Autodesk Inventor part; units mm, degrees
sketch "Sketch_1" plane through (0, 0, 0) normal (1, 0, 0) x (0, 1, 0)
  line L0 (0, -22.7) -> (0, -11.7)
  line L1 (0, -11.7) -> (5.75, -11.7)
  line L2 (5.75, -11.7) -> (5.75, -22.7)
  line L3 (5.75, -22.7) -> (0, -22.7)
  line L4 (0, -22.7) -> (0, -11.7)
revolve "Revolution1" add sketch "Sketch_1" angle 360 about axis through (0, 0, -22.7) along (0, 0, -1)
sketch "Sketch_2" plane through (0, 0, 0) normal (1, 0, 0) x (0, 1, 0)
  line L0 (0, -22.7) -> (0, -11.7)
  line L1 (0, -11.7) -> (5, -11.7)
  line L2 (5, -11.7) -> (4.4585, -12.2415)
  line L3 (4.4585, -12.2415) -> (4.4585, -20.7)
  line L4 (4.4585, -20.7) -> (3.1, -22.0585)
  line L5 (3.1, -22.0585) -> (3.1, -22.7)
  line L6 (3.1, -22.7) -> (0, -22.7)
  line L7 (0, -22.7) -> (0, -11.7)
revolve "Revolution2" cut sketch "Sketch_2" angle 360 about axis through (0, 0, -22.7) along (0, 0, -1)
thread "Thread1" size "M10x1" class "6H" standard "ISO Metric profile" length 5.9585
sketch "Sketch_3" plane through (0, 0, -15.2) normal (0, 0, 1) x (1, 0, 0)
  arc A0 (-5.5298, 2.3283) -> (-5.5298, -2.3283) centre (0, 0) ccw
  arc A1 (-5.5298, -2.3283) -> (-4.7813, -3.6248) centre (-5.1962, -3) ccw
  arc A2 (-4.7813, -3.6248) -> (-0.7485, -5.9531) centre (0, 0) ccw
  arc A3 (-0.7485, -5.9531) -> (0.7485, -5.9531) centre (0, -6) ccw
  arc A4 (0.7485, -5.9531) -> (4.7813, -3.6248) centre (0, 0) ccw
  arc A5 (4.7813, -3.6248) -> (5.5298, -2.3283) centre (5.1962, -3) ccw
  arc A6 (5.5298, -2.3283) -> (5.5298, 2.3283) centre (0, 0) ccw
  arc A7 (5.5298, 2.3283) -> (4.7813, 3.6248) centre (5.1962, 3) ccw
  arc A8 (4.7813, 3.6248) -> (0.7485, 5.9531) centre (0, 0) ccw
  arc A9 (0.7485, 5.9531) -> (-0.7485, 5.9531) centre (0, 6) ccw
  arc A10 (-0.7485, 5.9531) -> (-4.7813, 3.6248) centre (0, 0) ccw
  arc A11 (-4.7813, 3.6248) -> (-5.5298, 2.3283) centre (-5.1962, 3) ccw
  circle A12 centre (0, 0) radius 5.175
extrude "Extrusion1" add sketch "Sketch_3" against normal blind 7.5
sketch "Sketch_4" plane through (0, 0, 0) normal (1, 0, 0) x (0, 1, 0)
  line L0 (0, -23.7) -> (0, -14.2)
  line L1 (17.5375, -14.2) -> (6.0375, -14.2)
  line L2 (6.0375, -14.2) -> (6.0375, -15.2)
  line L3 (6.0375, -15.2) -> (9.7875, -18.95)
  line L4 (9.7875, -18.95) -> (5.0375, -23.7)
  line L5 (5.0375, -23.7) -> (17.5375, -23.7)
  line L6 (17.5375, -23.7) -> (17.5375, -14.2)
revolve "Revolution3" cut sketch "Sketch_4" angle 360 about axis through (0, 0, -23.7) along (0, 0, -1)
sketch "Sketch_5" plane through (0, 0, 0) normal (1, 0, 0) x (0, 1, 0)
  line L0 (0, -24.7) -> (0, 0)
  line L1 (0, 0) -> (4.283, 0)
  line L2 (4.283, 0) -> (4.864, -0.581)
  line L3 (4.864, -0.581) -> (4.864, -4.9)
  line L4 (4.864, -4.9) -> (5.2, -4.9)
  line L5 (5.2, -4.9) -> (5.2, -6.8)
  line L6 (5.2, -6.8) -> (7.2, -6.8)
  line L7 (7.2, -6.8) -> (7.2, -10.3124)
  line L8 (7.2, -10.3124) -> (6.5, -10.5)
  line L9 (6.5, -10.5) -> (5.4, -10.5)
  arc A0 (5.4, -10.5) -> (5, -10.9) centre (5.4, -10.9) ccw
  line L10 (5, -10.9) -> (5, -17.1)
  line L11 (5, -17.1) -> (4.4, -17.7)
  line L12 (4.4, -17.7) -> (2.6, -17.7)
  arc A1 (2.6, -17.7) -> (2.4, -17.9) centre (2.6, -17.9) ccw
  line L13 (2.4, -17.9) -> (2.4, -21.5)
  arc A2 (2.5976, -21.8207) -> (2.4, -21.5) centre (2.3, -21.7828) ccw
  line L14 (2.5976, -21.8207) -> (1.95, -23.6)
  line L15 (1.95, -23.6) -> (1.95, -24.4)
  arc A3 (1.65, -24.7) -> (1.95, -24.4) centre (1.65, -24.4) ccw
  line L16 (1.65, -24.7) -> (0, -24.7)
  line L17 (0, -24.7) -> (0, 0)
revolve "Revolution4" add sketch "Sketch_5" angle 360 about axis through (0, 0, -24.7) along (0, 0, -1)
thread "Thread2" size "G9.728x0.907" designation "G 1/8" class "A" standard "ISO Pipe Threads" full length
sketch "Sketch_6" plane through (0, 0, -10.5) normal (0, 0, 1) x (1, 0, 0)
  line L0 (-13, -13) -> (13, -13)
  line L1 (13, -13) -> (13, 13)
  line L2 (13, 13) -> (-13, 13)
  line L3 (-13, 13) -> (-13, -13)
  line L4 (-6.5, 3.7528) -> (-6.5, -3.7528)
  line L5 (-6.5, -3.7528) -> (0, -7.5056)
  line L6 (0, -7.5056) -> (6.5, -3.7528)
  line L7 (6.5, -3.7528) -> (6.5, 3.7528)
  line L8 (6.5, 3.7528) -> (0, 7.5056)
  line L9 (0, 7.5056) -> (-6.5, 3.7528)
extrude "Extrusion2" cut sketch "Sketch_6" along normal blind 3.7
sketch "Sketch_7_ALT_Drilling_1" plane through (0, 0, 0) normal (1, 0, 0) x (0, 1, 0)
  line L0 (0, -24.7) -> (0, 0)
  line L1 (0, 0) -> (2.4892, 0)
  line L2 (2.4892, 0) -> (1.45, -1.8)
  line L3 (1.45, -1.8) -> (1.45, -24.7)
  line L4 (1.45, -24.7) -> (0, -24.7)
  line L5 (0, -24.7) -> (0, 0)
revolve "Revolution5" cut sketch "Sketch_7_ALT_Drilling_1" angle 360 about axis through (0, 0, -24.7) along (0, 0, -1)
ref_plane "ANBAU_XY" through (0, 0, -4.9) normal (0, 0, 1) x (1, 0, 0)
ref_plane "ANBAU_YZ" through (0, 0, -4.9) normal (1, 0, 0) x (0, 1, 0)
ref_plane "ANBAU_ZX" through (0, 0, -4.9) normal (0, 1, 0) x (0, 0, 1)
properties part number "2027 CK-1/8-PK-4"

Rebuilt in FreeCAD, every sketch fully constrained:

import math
import FreeCAD as App
import Part
import Sketcher
Q = App.Units.Quantity

doc = App.newDocument("Part")
body = doc.addObject("PartDesign::Body", "Body")

sketch1 = body.newObject("Sketcher::SketchObject", "Sketch")
sketch1.AttachmentSupport = (doc.getObject("YZ_Plane"), [""])
sketch1.MapMode = "FlatFace"
sketch1.addGeometry([
    Part.LineSegment(App.Vector(0, -11.7, 0), App.Vector(0, -22.7, 0)),
    Part.LineSegment(App.Vector(0, -22.7, 0), App.Vector(5.75, -22.7, 0)),
    Part.LineSegment(App.Vector(5.75, -22.7, 0), App.Vector(5.75, -11.7, 0)),
    Part.LineSegment(App.Vector(5.75, -11.7, 0), App.Vector(0, -11.7, 0)),
], False)
sketch1.addConstraint([
    Sketcher.Constraint("Coincident", 0, 2, 1, 1),
    Sketcher.Constraint("Coincident", 1, 2, 2, 1),
    Sketcher.Constraint("Coincident", 2, 2, 3, 1),
    Sketcher.Constraint("Coincident", 3, 2, 0, 1),
    Sketcher.Constraint("Vertical", 0),
    Sketcher.Constraint("Horizontal", 1),
    Sketcher.Constraint("Vertical", 2),
    Sketcher.Constraint("Horizontal", 3),
    Sketcher.Constraint("PointOnObject", 0, 2, -2),
    Sketcher.Constraint("DistanceY", 0, 2, 0, 1, 11.0),
    Sketcher.Constraint("DistanceX", 1, 1, 1, 2, 5.75),
    Sketcher.Constraint("DistanceY", 0, 2, -1, 1, 22.7),
])
revolution = body.newObject("PartDesign::Revolution", "Revolution")
revolution.Profile = sketch1
revolution.ReferenceAxis = (sketch1, ["V_Axis"])
revolution.Angle = 360

sketch2 = body.newObject("Sketcher::SketchObject", "Sketch001")
sketch2.AttachmentSupport = (doc.getObject("YZ_Plane"), [""])
sketch2.MapMode = "FlatFace"
sketch2.addGeometry([
    Part.LineSegment(App.Vector(0, -11.7, 0), App.Vector(0, -22.7, 0)),
    Part.LineSegment(App.Vector(0, -22.7, 0), App.Vector(3.1, -22.7, 0)),
    Part.LineSegment(App.Vector(3.1, -22.7, 0), App.Vector(3.1, -22.0585, 0)),
    Part.LineSegment(App.Vector(3.1, -22.0585, 0), App.Vector(4.4585, -20.7, 0)),
    Part.LineSegment(App.Vector(4.4585, -20.7, 0), App.Vector(4.4585, -12.2415, 0)),
    Part.LineSegment(App.Vector(4.4585, -12.2415, 0), App.Vector(5, -11.7, 0)),
    Part.LineSegment(App.Vector(5, -11.7, 0), App.Vector(0, -11.7, 0)),
], False)
sketch2.addConstraint([
    Sketcher.Constraint("Coincident", 0, 2, 1, 1),
    Sketcher.Constraint("Coincident", 1, 2, 2, 1),
    Sketcher.Constraint("Coincident", 2, 2, 3, 1),
    Sketcher.Constraint("Coincident", 3, 2, 4, 1),
    Sketcher.Constraint("Coincident", 4, 2, 5, 1),
    Sketcher.Constraint("Coincident", 5, 2, 6, 1),
    Sketcher.Constraint("Coincident", 6, 2, 0, 1),
    Sketcher.Constraint("Vertical", 0),
    Sketcher.Constraint("Horizontal", 1),
    Sketcher.Constraint("Vertical", 2),
    Sketcher.Constraint("Vertical", 4),
    Sketcher.Constraint("Horizontal", 6),
    Sketcher.Constraint("PointOnObject", 0, 2, -2),
    Sketcher.Constraint("Parallel", 3, 5),
    Sketcher.Constraint("DistanceX", 6, 2, 6, 1, 5.0),
    Sketcher.Constraint("DistanceY", 0, 2, 0, 1, 11.0),
    Sketcher.Constraint("Angle", 3, Q("45 deg")),
    Sketcher.Constraint("DistanceX", 1, 1, 1, 2, 3.1),
    Sketcher.Constraint("DistanceY", 1, 2, 3, 2, 2.0),
    Sketcher.Constraint("DistanceY", 0, 2, -1, 1, 22.7),
    Sketcher.Constraint("DistanceY", 2, 1, 2, 2, 0.6415),
])
groove = body.newObject("PartDesign::Groove", "Groove")
groove.Profile = sketch2
groove.ReferenceAxis = (sketch2, ["V_Axis"])
groove.Angle = 360

sketch3 = body.newObject("Sketcher::SketchObject", "Sketch002")
sketch3.AttachmentSupport = (doc.getObject("XY_Plane"), [""])
sketch3.MapMode = "FlatFace"
sketch3.AttachmentOffset = App.Placement(App.Vector(0, 0, -15.2), App.Rotation())
sketch3.addGeometry([
    Part.ArcOfCircle(Part.Circle(App.Vector(-5.1962, 3, 0), App.Vector(0, 0, 1), 0.750011), math.radians(56.413752), math.radians(243.588694)),
    Part.ArcOfCircle(Part.Circle(App.Vector(0, 0, 0), App.Vector(0, 0, 1), 5.999972), math.radians(157.16667), math.radians(202.83333)),
    Part.ArcOfCircle(Part.Circle(App.Vector(-5.1962, -3, 0), App.Vector(0, 0, 1), 0.74998), math.radians(116.411306), math.radians(303.586248)),
    Part.ArcOfCircle(Part.Circle(App.Vector(0, 0, 0), App.Vector(0, 0, 1), 5.999971), math.radians(-142.8335), math.radians(-97.166354)),
    Part.ArcOfCircle(Part.Circle(App.Vector(0, -6, 0), App.Vector(0, 0, 1), 0.749968), math.radians(176.414611), math.radians(363.585389)),
    Part.ArcOfCircle(Part.Circle(App.Vector(0, 0, 0), App.Vector(0, 0, 1), 6), math.radians(-82.833646), math.radians(-37.1665)),
    Part.ArcOfCircle(Part.Circle(App.Vector(5.1962, -3, 0), App.Vector(0, 0, 1), 0.750011), math.radians(-123.586248), math.radians(63.588694)),
    Part.ArcOfCircle(Part.Circle(App.Vector(0, 0, 0), App.Vector(0, 0, 1), 5.999972), math.radians(-22.83333), math.radians(22.83333)),
    Part.ArcOfCircle(Part.Circle(App.Vector(5.1962, 3, 0), App.Vector(0, 0, 1), 0.74998), math.radians(-63.588694), math.radians(123.586248)),
    Part.ArcOfCircle(Part.Circle(App.Vector(0, 0, 0), App.Vector(0, 0, 1), 5.999971), math.radians(37.1665), math.radians(82.833646)),
    Part.ArcOfCircle(Part.Circle(App.Vector(0, 6, 0), App.Vector(0, 0, 1), 0.749968), math.radians(-3.585389), math.radians(183.585389)),
    Part.ArcOfCircle(Part.Circle(App.Vector(0, 0, 0), App.Vector(0, 0, 1), 6), math.radians(97.166354), math.radians(142.8335)),
    Part.Circle(App.Vector(0, 0, 0), App.Vector(0, 0, 1), 5.175),
], False)
sketch3.addConstraint([
    Sketcher.Constraint("Coincident", 0, 2, 1, 1),
    Sketcher.Constraint("Coincident", 1, 2, 2, 1),
    Sketcher.Constraint("Coincident", 2, 2, 3, 1),
    Sketcher.Constraint("Coincident", 3, 2, 4, 1),
    Sketcher.Constraint("Coincident", 4, 2, 5, 1),
    Sketcher.Constraint("Coincident", 5, 2, 6, 1),
    Sketcher.Constraint("Coincident", 6, 2, 7, 1),
    Sketcher.Constraint("Coincident", 7, 2, 8, 1),
    Sketcher.Constraint("Coincident", 8, 2, 9, 1),
    Sketcher.Constraint("Coincident", 9, 2, 10, 1),
    Sketcher.Constraint("Coincident", 10, 2, 11, 1),
    Sketcher.Constraint("Coincident", 11, 2, 0, 1),
    Sketcher.Constraint("Coincident", 1, 3, -1, 1),
    Sketcher.Constraint("Coincident", 3, 3, -1, 1),
    Sketcher.Constraint("Coincident", 5, 3, -1, 1),
    Sketcher.Constraint("Coincident", 7, 3, -1, 1),
    Sketcher.Constraint("Coincident", 9, 3, -1, 1),
    Sketcher.Constraint("Coincident", 11, 3, -1, 1),
    Sketcher.Constraint("Coincident", 12, 3, -1, 1),
    Sketcher.Constraint("Equal", 0, 2),
    Sketcher.Constraint("Equal", 1, 3),
    Sketcher.Constraint("Equal", 2, 4),
    Sketcher.Constraint("Equal", 3, 5),
    Sketcher.Constraint("Equal", 4, 6),
    Sketcher.Constraint("Equal", 5, 7),
    Sketcher.Constraint("Equal", 6, 8),
    Sketcher.Constraint("Equal", 7, 9),
    Sketcher.Constraint("Equal", 8, 10),
    Sketcher.Constraint("Equal", 9, 11),
    Sketcher.Constraint("Symmetric", 0, 3, 6, 3, -1, 1),
    Sketcher.Constraint("Symmetric", 2, 3, 8, 3, -1, 1),
    Sketcher.Constraint("Symmetric", 4, 3, 10, 3, -1, 1),
    Sketcher.Constraint("Symmetric", 2, 3, 6, 3, -2),
    Sketcher.Constraint("PointOnObject", 4, 3, -2),
    Sketcher.Constraint("Radius", 1, 6.0),
    Sketcher.Constraint("Diameter", 12, 10.35),
    Sketcher.Constraint("Radius", 0, 0.75),
    Sketcher.Constraint("DistanceY", -1, 1, 0, 3, 3.0),
    Sketcher.Constraint("DistanceY", 4, 3, -1, 1, 6.0),
    Sketcher.Constraint("DistanceX", 2, 3, 2, 2, 0.415),
])
pad1 = body.newObject("PartDesign::Pad", "Pad")
pad1.Profile = sketch3
pad1.Length = 7.5
pad1.Reversed = True

sketch4 = body.newObject("Sketcher::SketchObject", "Sketch003")
sketch4.AttachmentSupport = (doc.getObject("YZ_Plane"), [""])
sketch4.MapMode = "FlatFace"
sketch4.addGeometry([
    Part.LineSegment(App.Vector(17.5375, -23.7, 0), App.Vector(17.5375, -14.2, 0)),
    Part.LineSegment(App.Vector(17.5375, -14.2, 0), App.Vector(6.0375, -14.2, 0)),
    Part.LineSegment(App.Vector(6.0375, -14.2, 0), App.Vector(6.0375, -15.2, 0)),
    Part.LineSegment(App.Vector(6.0375, -15.2, 0), App.Vector(9.7875, -18.95, 0)),
    Part.LineSegment(App.Vector(9.7875, -18.95, 0), App.Vector(5.0375, -23.7, 0)),
    Part.LineSegment(App.Vector(5.0375, -23.7, 0), App.Vector(17.5375, -23.7, 0)),
], False)
sketch4.addConstraint([
    Sketcher.Constraint("Coincident", 0, 2, 1, 1),
    Sketcher.Constraint("Coincident", 1, 2, 2, 1),
    Sketcher.Constraint("Coincident", 2, 2, 3, 1),
    Sketcher.Constraint("Coincident", 3, 2, 4, 1),
    Sketcher.Constraint("Coincident", 4, 2, 5, 1),
    Sketcher.Constraint("Coincident", 5, 2, 0, 1),
    Sketcher.Constraint("Vertical", 0),
    Sketcher.Constraint("Horizontal", 1),
    Sketcher.Constraint("Vertical", 2),
    Sketcher.Constraint("Horizontal", 5),
    Sketcher.Constraint("Perpendicular", 3, 4),
    Sketcher.Constraint("DistanceY", 2, 2, 2, 1, 1.0),
    Sketcher.Constraint("Angle", 3, Q("-45 deg")),
    Sketcher.Constraint("DistanceX", 1, 2, 1, 1, 11.5),
    Sketcher.Constraint("DistanceX", 5, 1, 5, 2, 12.5),
    Sketcher.Constraint("DistanceY", 0, 1, 0, 2, 9.5),
    Sketcher.Constraint("DistanceY", 0, 2, -1, 1, 14.2),
    Sketcher.Constraint("DistanceX", -1, 1, 0, 2, 17.5375),
])
groove2 = body.newObject("PartDesign::Groove", "Groove001")
groove2.Profile = sketch4
groove2.ReferenceAxis = (sketch4, ["V_Axis"])
groove2.Angle = 360

sketch5 = body.newObject("Sketcher::SketchObject", "Sketch004")
sketch5.AttachmentSupport = (doc.getObject("YZ_Plane"), [""])
sketch5.MapMode = "FlatFace"
sketch5.addGeometry([
    Part.LineSegment(App.Vector(0, 0, 0), App.Vector(0, -24.7, 0)),
    Part.LineSegment(App.Vector(0, -24.7, 0), App.Vector(1.65, -24.7, 0)),
    Part.ArcOfCircle(Part.Circle(App.Vector(1.65, -24.4, 0), App.Vector(0, 0, 1), 0.3), math.radians(-90), math.radians(0)),
    Part.LineSegment(App.Vector(1.95, -24.4, 0), App.Vector(1.95, -23.6, 0)),
    Part.LineSegment(App.Vector(1.95, -23.6, 0), App.Vector(2.5976, -21.8207, 0)),
    Part.ArcOfCircle(Part.Circle(App.Vector(2.3, -21.7828, 0), App.Vector(0, 0, 1), 0.300004), math.radians(-7.257673), math.radians(70.52606)),
    Part.LineSegment(App.Vector(2.4, -21.5, 0), App.Vector(2.4, -17.9, 0)),
    Part.ArcOfCircle(Part.Circle(App.Vector(2.6, -17.9, 0), App.Vector(0, 0, 1), 0.2), math.radians(90), math.radians(180)),
    Part.LineSegment(App.Vector(2.6, -17.7, 0), App.Vector(4.4, -17.7, 0)),
    Part.LineSegment(App.Vector(4.4, -17.7, 0), App.Vector(5, -17.1, 0)),
    Part.LineSegment(App.Vector(5, -17.1, 0), App.Vector(5, -10.9, 0)),
    Part.ArcOfCircle(Part.Circle(App.Vector(5.4, -10.9, 0), App.Vector(0, 0, 1), 0.4), math.radians(90), math.radians(180)),
    Part.LineSegment(App.Vector(5.4, -10.5, 0), App.Vector(6.5, -10.5, 0)),
    Part.LineSegment(App.Vector(6.5, -10.5, 0), App.Vector(7.2, -10.3124, 0)),
    Part.LineSegment(App.Vector(7.2, -10.3124, 0), App.Vector(7.2, -6.8, 0)),
    Part.LineSegment(App.Vector(7.2, -6.8, 0), App.Vector(5.2, -6.8, 0)),
    Part.LineSegment(App.Vector(5.2, -6.8, 0), App.Vector(5.2, -4.9, 0)),
    Part.LineSegment(App.Vector(5.2, -4.9, 0), App.Vector(4.864, -4.9, 0)),
    Part.LineSegment(App.Vector(4.864, -4.9, 0), App.Vector(4.864, -0.581, 0)),
    Part.LineSegment(App.Vector(4.864, -0.581, 0), App.Vector(4.283, 0, 0)),
    Part.LineSegment(App.Vector(4.283, 0, 0), App.Vector(0, 0, 0)),
], False)
sketch5.addConstraint([
    Sketcher.Constraint("Coincident", 0, 2, 1, 1),
    Sketcher.Constraint("Tangent", 1, 2, 2, 1),
    Sketcher.Constraint("Tangent", 2, 2, 3, 1),
    Sketcher.Constraint("Coincident", 3, 2, 4, 1),
    Sketcher.Constraint("Coincident", 4, 2, 5, 1),
    Sketcher.Constraint("Coincident", 5, 2, 6, 1),
    Sketcher.Constraint("Tangent", 6, 2, 7, 2),
    Sketcher.Constraint("Tangent", 7, 1, 8, 1),
    Sketcher.Constraint("Coincident", 8, 2, 9, 1),
    Sketcher.Constraint("Coincident", 9, 2, 10, 1),
    Sketcher.Constraint("Tangent", 10, 2, 11, 2),
    Sketcher.Constraint("Tangent", 11, 1, 12, 1),
    Sketcher.Constraint("Coincident", 12, 2, 13, 1),
    Sketcher.Constraint("Coincident", 13, 2, 14, 1),
    Sketcher.Constraint("Coincident", 14, 2, 15, 1),
    Sketcher.Constraint("Coincident", 15, 2, 16, 1),
    Sketcher.Constraint("Coincident", 16, 2, 17, 1),
    Sketcher.Constraint("Coincident", 17, 2, 18, 1),
    Sketcher.Constraint("Coincident", 18, 2, 19, 1),
    Sketcher.Constraint("Coincident", 19, 2, 20, 1),
    Sketcher.Constraint("Coincident", 20, 2, 0, 1),
    Sketcher.Constraint("Vertical", 0),
    Sketcher.Constraint("Horizontal", 1),
    Sketcher.Constraint("Vertical", 3),
    Sketcher.Constraint("Vertical", 6),
    Sketcher.Constraint("Horizontal", 8),
    Sketcher.Constraint("Vertical", 10),
    Sketcher.Constraint("Horizontal", 12),
    Sketcher.Constraint("Vertical", 14),
    Sketcher.Constraint("Horizontal", 15),
    Sketcher.Constraint("Vertical", 16),
    Sketcher.Constraint("Horizontal", 17),
    Sketcher.Constraint("Vertical", 18),
    Sketcher.Constraint("Horizontal", 20),
    Sketcher.Constraint("Coincident", 20, 2, -1, 1),
    Sketcher.Constraint("Equal", 2, 5),
    Sketcher.Constraint("Perpendicular", 9, 19),
    Sketcher.Constraint("Radius", 2, 0.3),
    Sketcher.Constraint("Radius", 7, 0.2),
    Sketcher.Constraint("Radius", 11, 0.4),
    Sketcher.Constraint("DistanceX", 15, 2, 15, 1, 2.0),
    Sketcher.Constraint("Angle", 4, Q("70.0003 deg")),
    Sketcher.Constraint("Angle", 9, Q("45 deg")),
    Sketcher.Constraint("DistanceX", 8, 1, 8, 2, 1.8),
    Sketcher.Constraint("DistanceX", 12, 1, 12, 2, 1.1),
    Sketcher.Constraint("DistanceY", 0, 2, 0, 1, 24.7),
    Sketcher.Constraint("DistanceY", 3, 1, 3, 2, 0.8),
    Sketcher.Constraint("DistanceY", 6, 1, 6, 2, 3.6),
    Sketcher.Constraint("DistanceY", 10, 1, 10, 2, 6.2),
    Sketcher.Constraint("DistanceY", 16, 1, 16, 2, 1.9),
    Sketcher.Constraint("DistanceX", -1, 1, 9, 2, 5.0),
    Sketcher.Constraint("DistanceY", 7, 3, 11, 3, 7.0),
    Sketcher.Constraint("DistanceX", 1, 1, 1, 2, 1.65),
    Sketcher.Constraint("DistanceX", -1, 1, 5, 3, 2.3),
    Sketcher.Constraint("DistanceY", 7, 3, -1, 1, 17.9),
    Sketcher.Constraint("DistanceX", -1, 1, 13, 2, 7.2),
    Sketcher.Constraint("DistanceY", 14, 2, -1, 1, 6.8),
    Sketcher.Constraint("DistanceX", 17, 2, 17, 1, 0.336),
    Sketcher.Constraint("DistanceX", 20, 2, 20, 1, 4.283),
    Sketcher.Constraint("DistanceY", 14, 1, 14, 2, 3.5124),
])
revolution2 = body.newObject("PartDesign::Revolution", "Revolution001")
revolution2.Profile = sketch5
revolution2.ReferenceAxis = (sketch5, ["V_Axis"])
revolution2.Angle = 360

sketch6 = body.newObject("Sketcher::SketchObject", "Sketch005")
sketch6.AttachmentSupport = (doc.getObject("XY_Plane"), [""])
sketch6.MapMode = "FlatFace"
sketch6.AttachmentOffset = App.Placement(App.Vector(0, 0, -10.5), App.Rotation())
sketch6.addGeometry([
    Part.LineSegment(App.Vector(-13, 13, 0), App.Vector(-13, -13, 0)),
    Part.LineSegment(App.Vector(-13, -13, 0), App.Vector(13, -13, 0)),
    Part.LineSegment(App.Vector(13, -13, 0), App.Vector(13, 13, 0)),
    Part.LineSegment(App.Vector(13, 13, 0), App.Vector(-13, 13, 0)),
    Part.LineSegment(App.Vector(-6.5, -3.7528, 0), App.Vector(-6.5, 3.7528, 0)),
    Part.LineSegment(App.Vector(-6.5, 3.7528, 0), App.Vector(0, 7.5056, 0)),
    Part.LineSegment(App.Vector(0, 7.5056, 0), App.Vector(6.5, 3.7528, 0)),
    Part.LineSegment(App.Vector(6.5, 3.7528, 0), App.Vector(6.5, -3.7528, 0)),
    Part.LineSegment(App.Vector(6.5, -3.7528, 0), App.Vector(0, -7.5056, 0)),
    Part.LineSegment(App.Vector(0, -7.5056, 0), App.Vector(-6.5, -3.7528, 0)),
], False)
sketch6.addConstraint([
    Sketcher.Constraint("Coincident", 0, 2, 1, 1),
    Sketcher.Constraint("Coincident", 1, 2, 2, 1),
    Sketcher.Constraint("Coincident", 2, 2, 3, 1),
    Sketcher.Constraint("Coincident", 3, 2, 0, 1),
    Sketcher.Constraint("Coincident", 4, 2, 5, 1),
    Sketcher.Constraint("Coincident", 5, 2, 6, 1),
    Sketcher.Constraint("Coincident", 6, 2, 7, 1),
    Sketcher.Constraint("Coincident", 7, 2, 8, 1),
    Sketcher.Constraint("Coincident", 8, 2, 9, 1),
    Sketcher.Constraint("Coincident", 9, 2, 4, 1),
    Sketcher.Constraint("Vertical", 0),
    Sketcher.Constraint("Horizontal", 1),
    Sketcher.Constraint("Vertical", 2),
    Sketcher.Constraint("Horizontal", 3),
    Sketcher.Constraint("Vertical", 4),
    Sketcher.Constraint("Vertical", 7),
    Sketcher.Constraint("Symmetric", 0, 2, 2, 2, -1, 1),
    Sketcher.Constraint("Symmetric", 4, 2, 7, 2, -1, 1),
    Sketcher.Constraint("Symmetric", 5, 2, 8, 2, -1, 1),
    Sketcher.Constraint("PointOnObject", 5, 2, -2),
    Sketcher.Constraint("Parallel", 6, 9),
    Sketcher.Constraint("Horizontal", 4, 2, 6, 2),
    Sketcher.Constraint("Equal", 3, 0),
    Sketcher.Constraint("DistanceX", 1, 1, 1, 2, 26.0),
    Sketcher.Constraint("Angle", 5, Q("30.0002 deg")),
    Sketcher.Constraint("DistanceX", 4, 2, 6, 2, 13.0),
    Sketcher.Constraint("DistanceY", 4, 1, 4, 2, 7.5056),
])
pocket1 = body.newObject("PartDesign::Pocket", "Pocket")
pocket1.Profile = sketch6
pocket1.Length = 3.7
pocket1.Reversed = True

sketch7 = body.newObject("Sketcher::SketchObject", "Sketch006")
sketch7.AttachmentSupport = (doc.getObject("YZ_Plane"), [""])
sketch7.MapMode = "FlatFace"
sketch7.addGeometry([
    Part.LineSegment(App.Vector(0, 0, 0), App.Vector(0, -24.7, 0)),
    Part.LineSegment(App.Vector(0, -24.7, 0), App.Vector(1.45, -24.7, 0)),
    Part.LineSegment(App.Vector(1.45, -24.7, 0), App.Vector(1.45, -1.8, 0)),
    Part.LineSegment(App.Vector(1.45, -1.8, 0), App.Vector(2.4892, 0, 0)),
    Part.LineSegment(App.Vector(2.4892, 0, 0), App.Vector(0, 0, 0)),
], False)
sketch7.addConstraint([
    Sketcher.Constraint("Coincident", 0, 2, 1, 1),
    Sketcher.Constraint("Coincident", 1, 2, 2, 1),
    Sketcher.Constraint("Coincident", 2, 2, 3, 1),
    Sketcher.Constraint("Coincident", 3, 2, 4, 1),
    Sketcher.Constraint("Coincident", 4, 2, 0, 1),
    Sketcher.Constraint("Vertical", 0),
    Sketcher.Constraint("Horizontal", 1),
    Sketcher.Constraint("Vertical", 2),
    Sketcher.Constraint("Horizontal", 4),
    Sketcher.Constraint("Coincident", 4, 2, -1, 1),
    Sketcher.Constraint("Angle", 3, Q("60.0007 deg")),
    Sketcher.Constraint("DistanceY", 0, 2, 0, 1, 24.7),
    Sketcher.Constraint("DistanceY", 2, 1, 2, 2, 22.9),
    Sketcher.Constraint("DistanceX", 1, 1, 1, 2, 1.45),
])
groove3 = body.newObject("PartDesign::Groove", "Groove002")
groove3.Profile = sketch7
groove3.ReferenceAxis = (sketch7, ["V_Axis"])
groove3.Angle = 360

doc.recompute()
